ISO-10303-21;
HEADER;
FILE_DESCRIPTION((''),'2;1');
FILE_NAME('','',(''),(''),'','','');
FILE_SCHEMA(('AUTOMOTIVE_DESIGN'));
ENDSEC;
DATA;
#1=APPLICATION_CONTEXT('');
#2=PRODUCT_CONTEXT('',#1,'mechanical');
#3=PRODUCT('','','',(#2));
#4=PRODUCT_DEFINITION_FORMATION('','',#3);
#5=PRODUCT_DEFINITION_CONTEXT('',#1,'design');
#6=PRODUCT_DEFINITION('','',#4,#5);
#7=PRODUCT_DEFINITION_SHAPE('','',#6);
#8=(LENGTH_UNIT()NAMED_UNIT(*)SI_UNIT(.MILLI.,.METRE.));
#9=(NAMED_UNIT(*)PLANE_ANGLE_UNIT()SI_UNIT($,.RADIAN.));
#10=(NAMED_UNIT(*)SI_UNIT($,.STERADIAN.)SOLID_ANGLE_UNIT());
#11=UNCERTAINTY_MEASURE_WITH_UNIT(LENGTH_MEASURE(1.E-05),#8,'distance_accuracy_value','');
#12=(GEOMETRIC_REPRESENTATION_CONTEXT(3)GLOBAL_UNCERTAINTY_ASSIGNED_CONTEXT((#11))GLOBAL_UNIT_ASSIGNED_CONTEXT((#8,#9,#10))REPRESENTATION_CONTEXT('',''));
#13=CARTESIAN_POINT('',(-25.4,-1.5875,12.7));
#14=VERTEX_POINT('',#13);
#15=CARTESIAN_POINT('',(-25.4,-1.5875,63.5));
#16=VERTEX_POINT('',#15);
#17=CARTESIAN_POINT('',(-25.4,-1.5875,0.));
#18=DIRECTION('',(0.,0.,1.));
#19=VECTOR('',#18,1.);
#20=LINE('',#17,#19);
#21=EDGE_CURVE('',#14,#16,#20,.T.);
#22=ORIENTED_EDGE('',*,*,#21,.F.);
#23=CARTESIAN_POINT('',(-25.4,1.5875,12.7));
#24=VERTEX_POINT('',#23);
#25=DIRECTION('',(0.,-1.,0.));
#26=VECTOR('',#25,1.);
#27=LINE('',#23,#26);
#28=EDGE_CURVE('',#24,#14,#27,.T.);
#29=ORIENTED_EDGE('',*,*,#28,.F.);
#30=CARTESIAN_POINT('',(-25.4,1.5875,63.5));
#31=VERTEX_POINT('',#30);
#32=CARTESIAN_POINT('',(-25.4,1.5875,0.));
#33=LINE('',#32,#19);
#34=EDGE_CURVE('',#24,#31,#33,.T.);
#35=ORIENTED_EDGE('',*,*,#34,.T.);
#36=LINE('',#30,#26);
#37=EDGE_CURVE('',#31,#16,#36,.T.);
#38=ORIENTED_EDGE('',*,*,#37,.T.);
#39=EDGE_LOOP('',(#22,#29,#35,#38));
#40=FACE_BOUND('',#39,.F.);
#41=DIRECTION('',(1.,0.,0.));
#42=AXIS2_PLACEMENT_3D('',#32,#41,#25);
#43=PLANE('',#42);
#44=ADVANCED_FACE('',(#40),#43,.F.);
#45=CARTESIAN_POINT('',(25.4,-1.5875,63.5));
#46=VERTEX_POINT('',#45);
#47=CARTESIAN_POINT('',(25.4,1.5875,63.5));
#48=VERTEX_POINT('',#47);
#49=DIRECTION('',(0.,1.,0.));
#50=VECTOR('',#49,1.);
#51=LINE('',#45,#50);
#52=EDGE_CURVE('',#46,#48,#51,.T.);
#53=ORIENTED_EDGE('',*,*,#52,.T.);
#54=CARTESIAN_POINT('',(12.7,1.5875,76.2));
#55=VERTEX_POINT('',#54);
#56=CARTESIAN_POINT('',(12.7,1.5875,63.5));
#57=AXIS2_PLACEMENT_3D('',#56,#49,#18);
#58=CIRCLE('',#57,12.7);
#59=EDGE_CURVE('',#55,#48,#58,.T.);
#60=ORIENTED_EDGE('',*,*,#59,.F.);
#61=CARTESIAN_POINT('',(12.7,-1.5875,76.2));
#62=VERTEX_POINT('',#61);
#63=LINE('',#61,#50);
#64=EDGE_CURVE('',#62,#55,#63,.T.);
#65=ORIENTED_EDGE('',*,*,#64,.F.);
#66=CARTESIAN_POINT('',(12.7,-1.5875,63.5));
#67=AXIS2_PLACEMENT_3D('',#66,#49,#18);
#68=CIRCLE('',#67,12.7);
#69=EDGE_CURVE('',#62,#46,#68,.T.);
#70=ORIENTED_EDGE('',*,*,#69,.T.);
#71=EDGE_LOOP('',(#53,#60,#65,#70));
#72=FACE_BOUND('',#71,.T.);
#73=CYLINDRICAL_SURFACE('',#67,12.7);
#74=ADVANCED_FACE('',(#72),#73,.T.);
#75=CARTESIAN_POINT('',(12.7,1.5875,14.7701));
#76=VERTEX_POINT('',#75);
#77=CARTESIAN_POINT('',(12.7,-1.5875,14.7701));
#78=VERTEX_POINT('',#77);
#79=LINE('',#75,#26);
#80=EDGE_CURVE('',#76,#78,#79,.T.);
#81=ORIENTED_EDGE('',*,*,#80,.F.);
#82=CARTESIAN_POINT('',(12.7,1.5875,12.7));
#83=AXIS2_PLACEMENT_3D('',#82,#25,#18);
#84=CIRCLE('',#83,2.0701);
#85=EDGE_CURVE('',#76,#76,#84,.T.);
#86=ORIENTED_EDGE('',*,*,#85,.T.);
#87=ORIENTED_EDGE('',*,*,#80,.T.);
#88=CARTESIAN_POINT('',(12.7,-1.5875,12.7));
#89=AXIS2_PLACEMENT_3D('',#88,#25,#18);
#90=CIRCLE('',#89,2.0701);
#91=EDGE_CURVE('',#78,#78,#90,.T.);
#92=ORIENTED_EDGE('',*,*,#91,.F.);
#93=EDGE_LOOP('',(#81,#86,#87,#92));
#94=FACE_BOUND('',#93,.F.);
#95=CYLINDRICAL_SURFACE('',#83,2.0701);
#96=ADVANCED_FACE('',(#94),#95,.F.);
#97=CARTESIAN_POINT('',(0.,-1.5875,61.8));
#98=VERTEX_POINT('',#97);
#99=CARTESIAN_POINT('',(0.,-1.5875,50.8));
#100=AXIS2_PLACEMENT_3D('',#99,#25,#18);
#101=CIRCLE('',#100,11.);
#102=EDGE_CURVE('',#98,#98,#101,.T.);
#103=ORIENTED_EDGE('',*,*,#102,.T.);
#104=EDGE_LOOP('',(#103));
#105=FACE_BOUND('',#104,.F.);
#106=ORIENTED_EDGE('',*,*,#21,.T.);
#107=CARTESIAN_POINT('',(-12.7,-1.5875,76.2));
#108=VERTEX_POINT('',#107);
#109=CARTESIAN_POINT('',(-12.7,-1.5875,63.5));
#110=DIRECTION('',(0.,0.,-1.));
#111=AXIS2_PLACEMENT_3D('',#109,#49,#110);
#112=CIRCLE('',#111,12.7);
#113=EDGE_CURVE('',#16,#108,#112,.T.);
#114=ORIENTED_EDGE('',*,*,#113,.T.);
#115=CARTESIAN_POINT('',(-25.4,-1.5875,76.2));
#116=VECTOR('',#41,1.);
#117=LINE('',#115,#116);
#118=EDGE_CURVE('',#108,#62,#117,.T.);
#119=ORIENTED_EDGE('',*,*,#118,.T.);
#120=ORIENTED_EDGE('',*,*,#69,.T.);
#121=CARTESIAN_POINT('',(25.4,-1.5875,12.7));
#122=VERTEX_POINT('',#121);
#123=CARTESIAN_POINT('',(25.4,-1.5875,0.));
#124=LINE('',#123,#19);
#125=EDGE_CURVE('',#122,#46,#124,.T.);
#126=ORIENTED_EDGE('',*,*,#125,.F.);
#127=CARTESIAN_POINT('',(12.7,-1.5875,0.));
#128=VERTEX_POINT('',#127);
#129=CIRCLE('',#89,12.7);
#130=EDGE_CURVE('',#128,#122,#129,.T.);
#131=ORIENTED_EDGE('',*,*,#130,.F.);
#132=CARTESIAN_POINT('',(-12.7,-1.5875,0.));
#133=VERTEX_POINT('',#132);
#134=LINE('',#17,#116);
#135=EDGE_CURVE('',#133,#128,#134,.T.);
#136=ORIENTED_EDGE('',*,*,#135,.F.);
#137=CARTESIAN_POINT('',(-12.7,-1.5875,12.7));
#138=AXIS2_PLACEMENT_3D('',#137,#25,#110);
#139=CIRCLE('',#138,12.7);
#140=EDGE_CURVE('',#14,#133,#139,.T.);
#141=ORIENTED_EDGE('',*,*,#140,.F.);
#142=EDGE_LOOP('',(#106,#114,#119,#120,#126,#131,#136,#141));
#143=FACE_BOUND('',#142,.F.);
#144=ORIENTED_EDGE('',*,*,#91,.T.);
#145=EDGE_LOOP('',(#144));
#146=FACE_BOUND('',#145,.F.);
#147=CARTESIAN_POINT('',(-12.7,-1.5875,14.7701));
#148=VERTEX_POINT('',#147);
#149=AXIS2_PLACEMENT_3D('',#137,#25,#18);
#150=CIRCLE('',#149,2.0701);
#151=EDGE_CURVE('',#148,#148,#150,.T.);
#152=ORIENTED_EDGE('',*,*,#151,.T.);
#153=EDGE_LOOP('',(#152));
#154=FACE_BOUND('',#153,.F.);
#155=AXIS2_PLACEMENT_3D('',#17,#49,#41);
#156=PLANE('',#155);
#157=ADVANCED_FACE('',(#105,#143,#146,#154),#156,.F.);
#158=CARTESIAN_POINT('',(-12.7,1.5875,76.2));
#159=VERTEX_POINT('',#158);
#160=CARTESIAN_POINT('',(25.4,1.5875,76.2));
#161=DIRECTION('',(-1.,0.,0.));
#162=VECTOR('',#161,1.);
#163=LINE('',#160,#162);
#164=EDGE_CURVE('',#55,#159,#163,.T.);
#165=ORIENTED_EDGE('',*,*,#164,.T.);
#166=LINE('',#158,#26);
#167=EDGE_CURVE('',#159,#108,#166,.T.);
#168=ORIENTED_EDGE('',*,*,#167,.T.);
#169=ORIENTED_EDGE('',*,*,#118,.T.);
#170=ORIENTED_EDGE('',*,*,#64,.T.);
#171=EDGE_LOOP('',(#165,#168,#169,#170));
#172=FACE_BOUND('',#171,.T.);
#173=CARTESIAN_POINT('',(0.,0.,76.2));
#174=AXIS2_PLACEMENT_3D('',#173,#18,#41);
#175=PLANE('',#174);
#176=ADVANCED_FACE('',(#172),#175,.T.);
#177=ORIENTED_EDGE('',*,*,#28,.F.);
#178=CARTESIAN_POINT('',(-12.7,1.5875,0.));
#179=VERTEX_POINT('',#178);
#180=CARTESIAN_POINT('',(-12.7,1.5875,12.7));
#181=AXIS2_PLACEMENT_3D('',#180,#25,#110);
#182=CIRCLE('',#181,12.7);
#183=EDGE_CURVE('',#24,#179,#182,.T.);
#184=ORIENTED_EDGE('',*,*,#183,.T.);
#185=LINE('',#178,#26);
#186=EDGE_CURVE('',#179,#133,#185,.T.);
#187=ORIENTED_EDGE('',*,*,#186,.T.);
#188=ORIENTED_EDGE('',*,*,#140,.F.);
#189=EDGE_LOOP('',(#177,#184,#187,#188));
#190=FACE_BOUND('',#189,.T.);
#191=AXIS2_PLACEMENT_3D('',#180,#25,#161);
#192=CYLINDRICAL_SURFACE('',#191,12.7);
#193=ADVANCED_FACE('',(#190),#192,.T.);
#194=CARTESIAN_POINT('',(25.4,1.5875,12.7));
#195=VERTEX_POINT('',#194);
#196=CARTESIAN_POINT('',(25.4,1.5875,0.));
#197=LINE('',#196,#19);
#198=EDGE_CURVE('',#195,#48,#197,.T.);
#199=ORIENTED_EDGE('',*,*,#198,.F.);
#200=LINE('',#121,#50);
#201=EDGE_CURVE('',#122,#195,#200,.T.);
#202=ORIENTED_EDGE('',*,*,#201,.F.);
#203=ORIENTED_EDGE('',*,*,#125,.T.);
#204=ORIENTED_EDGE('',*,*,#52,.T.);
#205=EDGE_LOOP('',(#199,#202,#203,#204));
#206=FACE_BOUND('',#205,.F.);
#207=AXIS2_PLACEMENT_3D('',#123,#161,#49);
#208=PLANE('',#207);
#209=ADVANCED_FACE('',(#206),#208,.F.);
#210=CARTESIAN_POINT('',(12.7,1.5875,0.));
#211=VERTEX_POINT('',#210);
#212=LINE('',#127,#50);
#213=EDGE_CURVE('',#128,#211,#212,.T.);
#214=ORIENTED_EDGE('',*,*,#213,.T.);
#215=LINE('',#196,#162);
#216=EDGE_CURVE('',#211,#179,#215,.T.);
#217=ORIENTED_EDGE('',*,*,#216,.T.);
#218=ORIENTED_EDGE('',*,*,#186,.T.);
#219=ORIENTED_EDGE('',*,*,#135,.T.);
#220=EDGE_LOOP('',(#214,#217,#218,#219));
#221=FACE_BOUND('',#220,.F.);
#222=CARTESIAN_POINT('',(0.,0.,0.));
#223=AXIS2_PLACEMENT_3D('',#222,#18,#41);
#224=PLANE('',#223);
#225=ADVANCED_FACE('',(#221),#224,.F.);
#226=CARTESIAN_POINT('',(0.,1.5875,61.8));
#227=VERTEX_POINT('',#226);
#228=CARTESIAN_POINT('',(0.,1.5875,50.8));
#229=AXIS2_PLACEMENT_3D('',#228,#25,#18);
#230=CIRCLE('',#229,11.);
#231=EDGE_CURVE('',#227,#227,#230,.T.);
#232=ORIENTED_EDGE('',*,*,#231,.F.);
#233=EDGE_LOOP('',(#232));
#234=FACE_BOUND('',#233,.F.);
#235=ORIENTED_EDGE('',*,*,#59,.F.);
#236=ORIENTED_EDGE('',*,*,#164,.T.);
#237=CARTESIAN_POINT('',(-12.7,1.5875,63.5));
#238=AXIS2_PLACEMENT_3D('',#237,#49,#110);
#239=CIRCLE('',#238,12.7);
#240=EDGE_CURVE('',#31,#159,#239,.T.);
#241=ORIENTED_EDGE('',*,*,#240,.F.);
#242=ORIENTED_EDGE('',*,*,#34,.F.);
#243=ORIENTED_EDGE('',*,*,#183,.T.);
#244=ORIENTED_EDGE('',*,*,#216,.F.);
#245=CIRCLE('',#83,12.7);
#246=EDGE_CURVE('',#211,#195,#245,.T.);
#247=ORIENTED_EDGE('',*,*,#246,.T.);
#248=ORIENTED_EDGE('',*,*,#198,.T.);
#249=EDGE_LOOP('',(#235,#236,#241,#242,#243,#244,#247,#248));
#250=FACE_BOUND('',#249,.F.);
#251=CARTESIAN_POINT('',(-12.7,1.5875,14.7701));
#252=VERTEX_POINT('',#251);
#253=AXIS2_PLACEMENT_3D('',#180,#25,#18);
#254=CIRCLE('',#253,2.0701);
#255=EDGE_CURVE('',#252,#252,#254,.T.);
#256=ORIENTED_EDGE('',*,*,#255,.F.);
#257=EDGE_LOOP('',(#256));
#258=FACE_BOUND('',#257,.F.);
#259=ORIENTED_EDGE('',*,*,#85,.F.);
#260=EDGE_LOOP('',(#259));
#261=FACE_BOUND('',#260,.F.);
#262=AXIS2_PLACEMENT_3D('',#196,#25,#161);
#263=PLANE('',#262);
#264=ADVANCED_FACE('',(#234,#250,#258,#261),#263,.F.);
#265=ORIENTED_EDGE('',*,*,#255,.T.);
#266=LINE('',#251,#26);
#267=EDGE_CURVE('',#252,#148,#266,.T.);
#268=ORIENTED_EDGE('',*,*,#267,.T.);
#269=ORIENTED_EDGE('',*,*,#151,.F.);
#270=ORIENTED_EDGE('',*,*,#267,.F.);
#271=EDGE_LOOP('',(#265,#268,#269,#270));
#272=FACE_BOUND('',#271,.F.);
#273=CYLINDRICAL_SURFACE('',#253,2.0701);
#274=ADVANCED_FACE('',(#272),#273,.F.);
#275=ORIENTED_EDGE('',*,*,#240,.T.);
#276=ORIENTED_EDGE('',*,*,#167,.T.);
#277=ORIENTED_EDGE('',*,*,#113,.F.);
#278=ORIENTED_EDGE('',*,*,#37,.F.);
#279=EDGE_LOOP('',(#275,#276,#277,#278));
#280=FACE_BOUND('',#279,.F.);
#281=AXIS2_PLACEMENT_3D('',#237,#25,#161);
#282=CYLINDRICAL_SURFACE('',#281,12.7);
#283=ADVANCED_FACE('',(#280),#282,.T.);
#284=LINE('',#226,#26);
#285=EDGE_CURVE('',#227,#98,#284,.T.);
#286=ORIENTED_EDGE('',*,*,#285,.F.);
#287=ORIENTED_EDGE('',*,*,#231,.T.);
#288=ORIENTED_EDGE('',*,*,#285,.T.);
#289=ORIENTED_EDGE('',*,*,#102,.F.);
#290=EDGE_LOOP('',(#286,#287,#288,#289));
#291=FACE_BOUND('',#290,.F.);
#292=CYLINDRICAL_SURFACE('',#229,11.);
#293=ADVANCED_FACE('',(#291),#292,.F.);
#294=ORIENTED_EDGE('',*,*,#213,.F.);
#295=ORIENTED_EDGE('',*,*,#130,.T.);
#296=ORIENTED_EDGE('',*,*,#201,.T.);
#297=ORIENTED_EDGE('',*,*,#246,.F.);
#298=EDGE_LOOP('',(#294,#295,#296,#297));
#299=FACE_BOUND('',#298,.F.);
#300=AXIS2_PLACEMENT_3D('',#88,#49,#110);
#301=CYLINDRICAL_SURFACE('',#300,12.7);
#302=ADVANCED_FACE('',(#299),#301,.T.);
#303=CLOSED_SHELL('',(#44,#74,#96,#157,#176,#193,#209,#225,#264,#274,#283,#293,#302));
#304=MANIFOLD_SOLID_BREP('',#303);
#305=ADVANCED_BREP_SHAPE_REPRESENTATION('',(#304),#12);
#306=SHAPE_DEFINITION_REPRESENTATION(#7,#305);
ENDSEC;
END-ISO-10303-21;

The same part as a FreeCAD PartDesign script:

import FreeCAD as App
import Part
import Sketcher

V = App.Vector
Q = App.Units.Quantity


def edges_at(feature, points):
    """Names of the edges that pass closest to the given points."""
    edges = feature.Shape.Edges
    near = lambda p: min(range(len(edges)), key=lambda i: edges[i].distToShape(Part.Vertex(*p))[0])
    return sorted({f"Edge{near(p) + 1}" for p in points})


def add_polygon(sketch, points):
    """Adds a closed chain of lines whose ends are joined by coincident constraints."""
    first, n = sketch.GeometryCount, len(points)
    for a, b in zip(points, points[1:] + points[:1]):
        sketch.addGeometry(Part.LineSegment(App.Vector(*a, 0), App.Vector(*b, 0)), False)
    for i in range(n):
        sketch.addConstraint(Sketcher.Constraint("Coincident", first + i, 2, first + (i + 1) % n, 1))

doc = App.newDocument("Part")
params = doc.addObject("Spreadsheet::Sheet", "Params")
for row, (alias, value) in enumerate([
    ("sketch1_width", "2 in"),
    ("sketch1_height", "0.125 in"),
    ("pad1_length", "3 in"),
    ("sketch2_diameter", "0.163 in"),
    ("hole_diameter", "0.163 in"),
    ("hole2_diameter", "22 mm"),
    ("fillet_radius", "0.5 in"),
], start=1):
    params.set(f"A{row}", alias)
    params.set(f"B{row}", "=" + value)
    params.setAlias(f"B{row}", alias)

body = doc.addObject("PartDesign::Body", "Body")

sketch1 = body.newObject("Sketcher::SketchObject", "Sketch")
sketch1.AttachmentSupport = (doc.getObject("XY_Plane"), [""])
sketch1.MapMode = "FlatFace"
add_polygon(sketch1, [(-25.4, 1.6), (-25.4, -1.6), (25.4, -1.6), (25.4, 1.6)])
sketch1.addConstraint([
    Sketcher.Constraint("Vertical", 0),
    Sketcher.Constraint("Horizontal", 1),
    Sketcher.Constraint("Vertical", 2),
    Sketcher.Constraint("Horizontal", 3),
    Sketcher.Constraint("Symmetric", 0, 2, 2, 2, -1, 1),
    Sketcher.Constraint("DistanceX", 1, 1, 1, 2, Q("2 in")),
    Sketcher.Constraint("DistanceY", 0, 2, 0, 1, Q("0.125 in")),
])
sketch1.setExpression("Constraints[9]", "Params.sketch1_width")
sketch1.setExpression("Constraints[10]", "Params.sketch1_height")
pad1 = body.newObject("PartDesign::Pad", "Pad")
pad1.Profile = sketch1
pad1.setExpression("Length", "Params.pad1_length")

sketch2 = body.newObject("Sketcher::SketchObject", "Sketch001")
sketch2.AttachmentSupport = (doc.getObject("XZ_Plane"), [""])
sketch2.MapMode = "FlatFace"
sketch2.AttachmentOffset = App.Placement(V(0, 0, -0.0625 * 25.4), App.Rotation())
sketch2.addGeometry([
    Part.Circle(V(12.7, 12.7, 0), V(0, 0, 1), 2.1),
    Part.Circle(V(-12.7, 12.7, 0), V(0, 0, 1), 2.1),
], False)
sketch2.addConstraint([
    Sketcher.Constraint("Equal", 0, 1),
    Sketcher.Constraint("Symmetric", 0, 3, 1, 3, -2),
    Sketcher.Constraint("Diameter", 0, Q("0.163 in")),
    Sketcher.Constraint("DistanceX", 1, 3, 0, 3, Q("1 in")),
    Sketcher.Constraint("DistanceY", -1, 1, 0, 3, Q("0.5 in")),
])
sketch2.setExpression("Constraints[2]", "Params.sketch2_diameter")
doc.recompute()
hole = body.newObject("PartDesign::Hole", "Hole")
hole.Profile = sketch2
hole.ThreadType = "None"
hole.setExpression("Diameter", "Params.hole_diameter")
hole.DepthType = "ThroughAll"
hole.Reversed = True

sketch3 = body.newObject("Sketcher::SketchObject", "Sketch002")
sketch3.AttachmentSupport = (doc.getObject("XZ_Plane"), [""])
sketch3.MapMode = "FlatFace"
sketch3.AttachmentOffset = App.Placement(V(0, 0, -0.0625 * 25.4), App.Rotation())
sketch3.addGeometry(Part.Circle(V(0, 51, 0), V(0, 0, 1), 11), False)
sketch3.addConstraint([
    Sketcher.Constraint("PointOnObject", 0, 3, -2),
    Sketcher.Constraint("DistanceY", -1, 1, 0, 3, Q("2 in")),
    Sketcher.Constraint("Diameter", 0, 22.0),
])
doc.recompute()
hole2 = body.newObject("PartDesign::Hole", "Hole001")
hole2.Profile = sketch3
hole2.ThreadType = "None"
hole2.setExpression("Diameter", "Params.hole2_diameter")
hole2.DepthType = "ThroughAll"
hole2.Reversed = True
doc.recompute()

fillet = body.newObject("PartDesign::Fillet", "Fillet")
fillet.Base = (hole2, edges_at(hole2, [
    (-25.4, 0, 0),
    (25.4, 0, 0),
    (25.4, 0, 76.2),
    (-25.4, 0, 76.2),
]))
fillet.setExpression("Radius", "Params.fillet_radius")

doc.recompute()
